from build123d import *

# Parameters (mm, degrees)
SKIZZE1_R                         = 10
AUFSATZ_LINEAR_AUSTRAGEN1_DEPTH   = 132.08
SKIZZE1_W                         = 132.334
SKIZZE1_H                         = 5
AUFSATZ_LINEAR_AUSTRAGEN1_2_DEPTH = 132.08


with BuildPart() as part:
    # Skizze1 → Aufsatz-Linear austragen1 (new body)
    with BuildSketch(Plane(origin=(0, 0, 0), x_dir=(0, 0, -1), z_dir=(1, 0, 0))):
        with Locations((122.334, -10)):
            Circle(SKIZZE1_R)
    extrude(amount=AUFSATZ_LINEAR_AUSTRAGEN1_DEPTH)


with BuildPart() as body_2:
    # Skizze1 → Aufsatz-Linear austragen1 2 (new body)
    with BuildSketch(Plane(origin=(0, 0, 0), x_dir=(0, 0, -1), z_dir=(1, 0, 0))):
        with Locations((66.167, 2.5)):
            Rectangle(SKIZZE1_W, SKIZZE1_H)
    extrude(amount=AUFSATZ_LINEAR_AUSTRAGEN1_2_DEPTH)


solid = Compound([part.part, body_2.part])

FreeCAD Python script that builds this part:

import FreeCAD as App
import Part
import Sketcher

V = App.Vector
Q = App.Units.Quantity

doc = App.newDocument("Part")
body = doc.addObject("PartDesign::Body", "Body")

# Sketch on YZ plane
sketch1 = body.newObject("Sketcher::SketchObject", "Sketch")
sketch1.AttachmentSupport = (doc.getObject("YZ_Plane"), [""])
sketch1.MapMode = "FlatFace"
sketch1.addGeometry(Part.Circle(V(-10, -122, 0), V(0, 0, 1), 10), False)
sketch1.addConstraint([
    Sketcher.Constraint("Diameter", 0, Q("20 mm")),
    Sketcher.Constraint("DistanceX", 0, 3, -1, 1, Q("10 mm")),
    Sketcher.Constraint("DistanceY", 0, 3, -1, 1, Q("122.334 mm")),
])
pad1 = body.newObject("PartDesign::Pad", "Pad")
pad1.Profile = sketch1
pad1.Length = 132.08
body2 = doc.addObject("PartDesign::Body", "Body001")

# Sketch on YZ plane
sketch2 = body2.newObject("Sketcher::SketchObject", "Sketch001")
sketch2.AttachmentSupport = (doc.getObject("YZ_Plane001"), [""])
sketch2.MapMode = "FlatFace"
sketch2.addGeometry([
    Part.LineSegment(V(5, 0, 0), V(0, 0, 0)),
    Part.LineSegment(V(0, 0, 0), V(0, -132, 0)),
    Part.LineSegment(V(0, -132, 0), V(5, -132, 0)),
    Part.LineSegment(V(5, -132, 0), V(5, 0, 0)),
], False)
sketch2.addConstraint([
    Sketcher.Constraint("Coincident", 0, 2, 1, 1),
    Sketcher.Constraint("Coincident", 1, 2, 2, 1),
    Sketcher.Constraint("Coincident", 2, 2, 3, 1),
    Sketcher.Constraint("Coincident", 3, 2, 0, 1),
    Sketcher.Constraint("Horizontal", 0),
    Sketcher.Constraint("Vertical", 1),
    Sketcher.Constraint("Horizontal", 2),
    Sketcher.Constraint("Vertical", 3),
    Sketcher.Constraint("Coincident", 0, 2, -1, 1),
    Sketcher.Constraint("DistanceX", 0, 2, 0, 1, Q("5 mm")),
    Sketcher.Constraint("DistanceY", 1, 2, 1, 1, Q("132.334 mm")),
])
pad2 = body2.newObject("PartDesign::Pad", "Pad001")
pad2.Profile = sketch2
pad2.Length = 132.08

doc.recompute()
